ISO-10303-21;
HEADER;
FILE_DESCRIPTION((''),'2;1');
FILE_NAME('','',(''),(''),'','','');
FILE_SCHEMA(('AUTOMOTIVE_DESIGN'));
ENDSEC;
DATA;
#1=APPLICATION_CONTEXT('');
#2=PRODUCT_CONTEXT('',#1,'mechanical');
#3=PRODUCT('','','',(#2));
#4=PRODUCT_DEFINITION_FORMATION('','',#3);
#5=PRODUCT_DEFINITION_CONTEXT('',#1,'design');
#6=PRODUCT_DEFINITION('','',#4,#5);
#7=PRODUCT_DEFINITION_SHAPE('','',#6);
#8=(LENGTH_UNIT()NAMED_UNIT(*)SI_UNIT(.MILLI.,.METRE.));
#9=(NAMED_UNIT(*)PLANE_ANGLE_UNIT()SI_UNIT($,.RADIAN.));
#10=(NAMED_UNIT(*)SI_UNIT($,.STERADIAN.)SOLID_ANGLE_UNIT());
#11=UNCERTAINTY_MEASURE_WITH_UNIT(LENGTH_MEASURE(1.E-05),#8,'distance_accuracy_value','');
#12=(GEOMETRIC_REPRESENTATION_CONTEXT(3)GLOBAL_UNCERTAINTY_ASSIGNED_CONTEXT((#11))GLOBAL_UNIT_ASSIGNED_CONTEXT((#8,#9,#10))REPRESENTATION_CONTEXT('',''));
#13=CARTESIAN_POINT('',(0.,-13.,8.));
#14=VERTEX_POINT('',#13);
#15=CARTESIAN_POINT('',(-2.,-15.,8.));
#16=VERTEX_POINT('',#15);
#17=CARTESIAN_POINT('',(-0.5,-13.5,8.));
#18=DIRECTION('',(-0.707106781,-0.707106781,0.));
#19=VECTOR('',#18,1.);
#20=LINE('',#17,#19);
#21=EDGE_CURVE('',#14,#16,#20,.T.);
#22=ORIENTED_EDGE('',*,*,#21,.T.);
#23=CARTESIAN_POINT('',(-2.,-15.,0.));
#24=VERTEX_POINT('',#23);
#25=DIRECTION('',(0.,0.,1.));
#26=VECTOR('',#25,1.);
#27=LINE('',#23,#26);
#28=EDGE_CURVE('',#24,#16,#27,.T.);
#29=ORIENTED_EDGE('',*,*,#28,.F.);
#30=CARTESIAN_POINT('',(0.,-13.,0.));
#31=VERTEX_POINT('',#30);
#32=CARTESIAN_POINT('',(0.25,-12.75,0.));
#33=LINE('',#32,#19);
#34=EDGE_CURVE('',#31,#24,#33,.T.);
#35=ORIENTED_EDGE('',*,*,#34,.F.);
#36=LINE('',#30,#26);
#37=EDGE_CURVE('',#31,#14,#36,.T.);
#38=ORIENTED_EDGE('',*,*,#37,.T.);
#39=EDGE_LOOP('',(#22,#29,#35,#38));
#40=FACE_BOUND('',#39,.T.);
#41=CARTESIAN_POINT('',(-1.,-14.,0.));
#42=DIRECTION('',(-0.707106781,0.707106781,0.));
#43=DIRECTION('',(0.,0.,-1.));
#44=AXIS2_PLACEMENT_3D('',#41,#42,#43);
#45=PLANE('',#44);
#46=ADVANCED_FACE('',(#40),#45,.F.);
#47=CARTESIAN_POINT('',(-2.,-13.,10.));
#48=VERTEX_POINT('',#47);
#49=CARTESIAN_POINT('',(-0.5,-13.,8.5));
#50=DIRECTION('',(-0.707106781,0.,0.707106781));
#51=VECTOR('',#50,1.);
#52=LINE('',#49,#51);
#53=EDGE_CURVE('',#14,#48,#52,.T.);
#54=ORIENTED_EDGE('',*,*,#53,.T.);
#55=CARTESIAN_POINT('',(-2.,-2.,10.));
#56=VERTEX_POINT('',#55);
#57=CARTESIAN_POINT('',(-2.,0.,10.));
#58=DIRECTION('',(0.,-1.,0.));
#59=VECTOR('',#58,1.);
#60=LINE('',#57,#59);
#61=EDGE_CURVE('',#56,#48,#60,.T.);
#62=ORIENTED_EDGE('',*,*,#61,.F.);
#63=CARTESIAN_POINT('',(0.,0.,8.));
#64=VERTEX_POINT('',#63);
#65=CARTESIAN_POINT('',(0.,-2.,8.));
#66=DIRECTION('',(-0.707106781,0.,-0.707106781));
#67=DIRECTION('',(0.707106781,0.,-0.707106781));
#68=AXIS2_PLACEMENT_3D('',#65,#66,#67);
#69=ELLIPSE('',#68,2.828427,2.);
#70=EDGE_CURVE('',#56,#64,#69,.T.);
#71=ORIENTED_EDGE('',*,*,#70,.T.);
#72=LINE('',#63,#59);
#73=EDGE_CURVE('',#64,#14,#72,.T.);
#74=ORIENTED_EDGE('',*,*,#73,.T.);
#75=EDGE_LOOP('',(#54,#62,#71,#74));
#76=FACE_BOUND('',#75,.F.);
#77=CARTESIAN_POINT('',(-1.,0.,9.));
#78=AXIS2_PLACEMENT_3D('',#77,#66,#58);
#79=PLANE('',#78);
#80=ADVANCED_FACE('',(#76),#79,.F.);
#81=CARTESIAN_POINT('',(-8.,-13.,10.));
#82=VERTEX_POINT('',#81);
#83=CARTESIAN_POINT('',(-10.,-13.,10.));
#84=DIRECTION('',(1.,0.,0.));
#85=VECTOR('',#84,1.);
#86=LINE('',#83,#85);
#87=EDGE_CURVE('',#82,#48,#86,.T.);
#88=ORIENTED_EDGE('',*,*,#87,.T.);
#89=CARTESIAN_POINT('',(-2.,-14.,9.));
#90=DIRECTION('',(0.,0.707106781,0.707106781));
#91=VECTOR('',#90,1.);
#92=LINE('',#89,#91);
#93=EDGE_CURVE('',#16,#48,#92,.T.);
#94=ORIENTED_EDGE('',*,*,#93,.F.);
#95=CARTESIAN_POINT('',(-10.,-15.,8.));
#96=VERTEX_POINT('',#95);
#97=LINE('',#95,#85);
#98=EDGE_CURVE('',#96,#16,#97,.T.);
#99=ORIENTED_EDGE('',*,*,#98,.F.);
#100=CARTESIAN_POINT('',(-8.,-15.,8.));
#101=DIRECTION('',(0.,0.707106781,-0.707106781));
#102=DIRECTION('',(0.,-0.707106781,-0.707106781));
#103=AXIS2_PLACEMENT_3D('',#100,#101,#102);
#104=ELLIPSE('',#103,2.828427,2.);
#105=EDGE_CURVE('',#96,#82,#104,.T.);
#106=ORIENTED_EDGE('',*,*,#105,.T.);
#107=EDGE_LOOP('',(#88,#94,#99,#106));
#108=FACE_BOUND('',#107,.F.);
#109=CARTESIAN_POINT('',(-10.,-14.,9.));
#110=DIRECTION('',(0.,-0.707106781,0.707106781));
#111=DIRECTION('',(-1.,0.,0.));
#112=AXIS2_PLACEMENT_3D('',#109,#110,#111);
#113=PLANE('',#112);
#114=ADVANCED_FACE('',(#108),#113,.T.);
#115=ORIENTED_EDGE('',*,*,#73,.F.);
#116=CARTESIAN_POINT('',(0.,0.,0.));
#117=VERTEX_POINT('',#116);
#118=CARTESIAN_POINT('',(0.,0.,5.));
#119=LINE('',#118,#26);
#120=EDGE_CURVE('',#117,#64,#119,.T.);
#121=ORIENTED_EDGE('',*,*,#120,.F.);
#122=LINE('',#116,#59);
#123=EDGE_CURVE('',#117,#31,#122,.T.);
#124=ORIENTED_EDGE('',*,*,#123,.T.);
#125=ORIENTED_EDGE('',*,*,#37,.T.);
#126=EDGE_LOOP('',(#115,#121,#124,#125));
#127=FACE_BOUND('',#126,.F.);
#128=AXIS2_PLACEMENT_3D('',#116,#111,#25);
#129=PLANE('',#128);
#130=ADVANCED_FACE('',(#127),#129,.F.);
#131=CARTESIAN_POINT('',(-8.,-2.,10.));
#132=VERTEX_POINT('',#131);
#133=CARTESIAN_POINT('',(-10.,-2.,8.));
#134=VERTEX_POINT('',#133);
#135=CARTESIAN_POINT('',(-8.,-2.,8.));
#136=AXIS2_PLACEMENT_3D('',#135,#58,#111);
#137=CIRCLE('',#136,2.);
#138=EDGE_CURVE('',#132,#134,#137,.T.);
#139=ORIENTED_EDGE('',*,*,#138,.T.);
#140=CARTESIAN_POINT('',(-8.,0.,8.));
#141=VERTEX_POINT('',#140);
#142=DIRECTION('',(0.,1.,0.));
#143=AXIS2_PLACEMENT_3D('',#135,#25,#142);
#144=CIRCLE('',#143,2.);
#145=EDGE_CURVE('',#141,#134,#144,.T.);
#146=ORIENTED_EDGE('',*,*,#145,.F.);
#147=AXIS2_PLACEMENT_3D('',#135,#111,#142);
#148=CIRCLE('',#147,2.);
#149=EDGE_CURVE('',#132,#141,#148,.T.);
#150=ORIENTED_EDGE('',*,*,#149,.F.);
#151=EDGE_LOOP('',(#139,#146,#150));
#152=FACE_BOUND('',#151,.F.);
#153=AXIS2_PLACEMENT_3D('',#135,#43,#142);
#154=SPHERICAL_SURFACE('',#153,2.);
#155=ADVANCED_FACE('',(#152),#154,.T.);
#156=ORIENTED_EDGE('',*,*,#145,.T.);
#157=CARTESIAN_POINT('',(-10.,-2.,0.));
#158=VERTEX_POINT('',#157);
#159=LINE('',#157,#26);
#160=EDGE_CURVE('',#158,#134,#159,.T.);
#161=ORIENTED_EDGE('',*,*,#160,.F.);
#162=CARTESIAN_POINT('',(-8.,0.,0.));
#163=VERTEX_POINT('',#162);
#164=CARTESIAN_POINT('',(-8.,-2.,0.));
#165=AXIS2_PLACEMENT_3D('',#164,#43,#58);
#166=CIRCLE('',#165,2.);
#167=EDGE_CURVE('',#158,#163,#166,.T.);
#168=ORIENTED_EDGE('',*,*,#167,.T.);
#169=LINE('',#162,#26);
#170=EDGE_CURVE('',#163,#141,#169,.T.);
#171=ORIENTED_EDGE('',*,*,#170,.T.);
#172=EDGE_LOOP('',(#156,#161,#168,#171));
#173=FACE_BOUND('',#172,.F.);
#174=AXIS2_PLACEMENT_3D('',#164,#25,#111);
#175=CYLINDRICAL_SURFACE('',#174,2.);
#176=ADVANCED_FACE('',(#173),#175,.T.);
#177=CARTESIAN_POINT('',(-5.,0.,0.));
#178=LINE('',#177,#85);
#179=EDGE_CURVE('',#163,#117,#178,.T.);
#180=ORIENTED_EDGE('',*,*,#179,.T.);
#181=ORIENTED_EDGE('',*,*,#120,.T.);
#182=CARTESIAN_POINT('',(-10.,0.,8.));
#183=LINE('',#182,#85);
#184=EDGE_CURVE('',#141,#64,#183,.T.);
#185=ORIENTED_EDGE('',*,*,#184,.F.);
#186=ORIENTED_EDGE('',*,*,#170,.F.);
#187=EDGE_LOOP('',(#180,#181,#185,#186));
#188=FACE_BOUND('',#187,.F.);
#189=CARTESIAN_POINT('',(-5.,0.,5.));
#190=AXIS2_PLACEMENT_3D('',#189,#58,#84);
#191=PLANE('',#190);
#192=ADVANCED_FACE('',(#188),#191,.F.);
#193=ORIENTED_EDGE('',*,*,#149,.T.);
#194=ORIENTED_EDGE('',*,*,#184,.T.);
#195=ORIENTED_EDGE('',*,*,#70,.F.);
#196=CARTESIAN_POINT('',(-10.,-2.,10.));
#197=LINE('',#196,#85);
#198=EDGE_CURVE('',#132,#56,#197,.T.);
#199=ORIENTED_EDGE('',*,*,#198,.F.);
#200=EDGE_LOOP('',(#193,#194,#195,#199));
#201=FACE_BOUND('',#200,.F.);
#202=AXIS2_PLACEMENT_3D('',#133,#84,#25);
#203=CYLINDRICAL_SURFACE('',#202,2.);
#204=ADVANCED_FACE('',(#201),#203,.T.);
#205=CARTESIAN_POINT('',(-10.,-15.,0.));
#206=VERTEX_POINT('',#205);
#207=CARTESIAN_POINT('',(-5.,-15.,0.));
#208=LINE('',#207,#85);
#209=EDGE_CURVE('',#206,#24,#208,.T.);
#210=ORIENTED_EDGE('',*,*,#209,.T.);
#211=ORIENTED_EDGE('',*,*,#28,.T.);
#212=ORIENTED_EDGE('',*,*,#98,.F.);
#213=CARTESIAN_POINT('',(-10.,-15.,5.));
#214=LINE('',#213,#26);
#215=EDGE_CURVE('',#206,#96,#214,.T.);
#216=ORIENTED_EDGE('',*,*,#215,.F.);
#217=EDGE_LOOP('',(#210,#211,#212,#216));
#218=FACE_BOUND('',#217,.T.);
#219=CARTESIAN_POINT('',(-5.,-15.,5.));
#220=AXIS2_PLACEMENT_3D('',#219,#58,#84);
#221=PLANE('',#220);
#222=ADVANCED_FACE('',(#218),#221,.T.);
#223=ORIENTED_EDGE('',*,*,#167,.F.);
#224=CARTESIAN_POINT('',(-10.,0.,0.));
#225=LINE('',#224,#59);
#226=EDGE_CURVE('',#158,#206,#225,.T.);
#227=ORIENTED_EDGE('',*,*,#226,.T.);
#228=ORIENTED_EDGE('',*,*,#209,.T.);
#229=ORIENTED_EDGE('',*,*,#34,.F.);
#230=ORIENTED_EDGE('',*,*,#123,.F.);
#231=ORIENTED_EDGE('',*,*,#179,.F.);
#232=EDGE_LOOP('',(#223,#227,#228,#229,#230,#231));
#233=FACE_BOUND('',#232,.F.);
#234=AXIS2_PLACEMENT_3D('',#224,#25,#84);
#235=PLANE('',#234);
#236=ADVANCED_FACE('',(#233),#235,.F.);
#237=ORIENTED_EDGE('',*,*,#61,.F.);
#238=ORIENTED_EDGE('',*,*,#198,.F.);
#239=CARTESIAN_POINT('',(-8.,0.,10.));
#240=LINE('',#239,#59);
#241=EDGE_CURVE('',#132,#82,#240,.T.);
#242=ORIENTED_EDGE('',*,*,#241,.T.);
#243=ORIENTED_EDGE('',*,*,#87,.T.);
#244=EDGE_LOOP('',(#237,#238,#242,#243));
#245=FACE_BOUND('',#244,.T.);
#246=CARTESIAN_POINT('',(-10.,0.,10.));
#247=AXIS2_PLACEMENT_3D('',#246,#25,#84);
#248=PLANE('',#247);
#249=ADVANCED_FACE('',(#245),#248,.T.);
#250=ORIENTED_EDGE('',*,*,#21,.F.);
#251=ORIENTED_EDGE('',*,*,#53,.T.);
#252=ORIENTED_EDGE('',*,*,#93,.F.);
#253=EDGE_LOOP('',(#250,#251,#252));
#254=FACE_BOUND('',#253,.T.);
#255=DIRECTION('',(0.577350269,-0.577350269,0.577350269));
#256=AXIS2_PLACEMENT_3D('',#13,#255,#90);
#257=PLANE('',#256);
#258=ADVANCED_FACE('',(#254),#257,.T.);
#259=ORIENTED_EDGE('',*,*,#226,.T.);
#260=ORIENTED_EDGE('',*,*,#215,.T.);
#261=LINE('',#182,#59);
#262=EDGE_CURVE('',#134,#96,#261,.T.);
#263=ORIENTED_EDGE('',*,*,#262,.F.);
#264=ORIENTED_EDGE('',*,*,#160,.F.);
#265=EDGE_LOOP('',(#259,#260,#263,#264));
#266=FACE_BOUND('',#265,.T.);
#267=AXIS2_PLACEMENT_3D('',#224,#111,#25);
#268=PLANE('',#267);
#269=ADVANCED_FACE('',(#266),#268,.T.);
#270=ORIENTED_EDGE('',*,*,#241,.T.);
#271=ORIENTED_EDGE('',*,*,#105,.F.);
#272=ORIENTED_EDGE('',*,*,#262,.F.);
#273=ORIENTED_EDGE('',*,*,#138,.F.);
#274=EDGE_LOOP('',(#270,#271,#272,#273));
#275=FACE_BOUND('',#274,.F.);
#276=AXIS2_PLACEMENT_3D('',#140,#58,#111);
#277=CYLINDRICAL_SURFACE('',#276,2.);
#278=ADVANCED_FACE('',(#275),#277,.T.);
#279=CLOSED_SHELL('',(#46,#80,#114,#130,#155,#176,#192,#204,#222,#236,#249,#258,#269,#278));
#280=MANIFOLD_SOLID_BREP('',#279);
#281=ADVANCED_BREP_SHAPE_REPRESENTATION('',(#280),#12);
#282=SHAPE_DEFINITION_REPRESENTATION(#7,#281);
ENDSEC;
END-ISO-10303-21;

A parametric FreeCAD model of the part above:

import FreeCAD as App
import Part
import Sketcher
Q = App.Units.Quantity


def edges_at(feature, points):
    """Names of the edges that pass closest to the given points."""
    edges = feature.Shape.Edges
    near = lambda p: min(range(len(edges)), key=lambda i: edges[i].distToShape(Part.Vertex(*p))[0])
    return sorted({f"Edge{near(p) + 1}" for p in points})


def add_polygon(sketch, points):
    """Adds a closed chain of lines whose ends are joined by coincident constraints."""
    first, n = sketch.GeometryCount, len(points)
    for a, b in zip(points, points[1:] + points[:1]):
        sketch.addGeometry(Part.LineSegment(App.Vector(*a, 0), App.Vector(*b, 0)), False)
    for i in range(n):
        sketch.addConstraint(Sketcher.Constraint("Coincident", first + i, 2, first + (i + 1) % n, 1))

doc = App.newDocument("Part")
body = doc.addObject("PartDesign::Body", "Body")

sketch1 = body.newObject("Sketcher::SketchObject", "Sketch")
sketch1.AttachmentSupport = (doc.getObject("XZ_Plane"), [""])
sketch1.MapMode = "FlatFace"
add_polygon(sketch1, [(-10, 10), (-10, 0), (0, 0), (0, 10)])
sketch1.addConstraint(Sketcher.Constraint("Vertical", 0))
sketch1.addConstraint(Sketcher.Constraint("Horizontal", 1))
sketch1.addConstraint(Sketcher.Constraint("Vertical", 2))
sketch1.addConstraint(Sketcher.Constraint("Horizontal", 3))
sketch1.addConstraint(Sketcher.Constraint("Coincident", 1, 2, -1, 1))
sketch1.addConstraint(Sketcher.Constraint("Equal", 3, 0))
sketch1.addConstraint(Sketcher.Constraint("DistanceX", 1, 1, 1, 2, Q("10 mm")))
pad1 = body.newObject("PartDesign::Pad", "Pad")
pad1.Profile = sketch1
pad1.Length = 15
doc.recompute()

chamfer = body.newObject("PartDesign::Chamfer", "Chamfer")
chamfer.Base = (pad1, edges_at(pad1, [(-5, -15, 10), (0, -15, 5), (0, -7.5, 10)]))
chamfer.Size = 2
doc.recompute()

fillet = body.newObject("PartDesign::Fillet", "Fillet")
fillet.Base = (chamfer, edges_at(chamfer, [(-10, 0, 5), (-6, 0, 10), (-10, -6.5, 10)]))
fillet.Radius = 2

doc.recompute()
